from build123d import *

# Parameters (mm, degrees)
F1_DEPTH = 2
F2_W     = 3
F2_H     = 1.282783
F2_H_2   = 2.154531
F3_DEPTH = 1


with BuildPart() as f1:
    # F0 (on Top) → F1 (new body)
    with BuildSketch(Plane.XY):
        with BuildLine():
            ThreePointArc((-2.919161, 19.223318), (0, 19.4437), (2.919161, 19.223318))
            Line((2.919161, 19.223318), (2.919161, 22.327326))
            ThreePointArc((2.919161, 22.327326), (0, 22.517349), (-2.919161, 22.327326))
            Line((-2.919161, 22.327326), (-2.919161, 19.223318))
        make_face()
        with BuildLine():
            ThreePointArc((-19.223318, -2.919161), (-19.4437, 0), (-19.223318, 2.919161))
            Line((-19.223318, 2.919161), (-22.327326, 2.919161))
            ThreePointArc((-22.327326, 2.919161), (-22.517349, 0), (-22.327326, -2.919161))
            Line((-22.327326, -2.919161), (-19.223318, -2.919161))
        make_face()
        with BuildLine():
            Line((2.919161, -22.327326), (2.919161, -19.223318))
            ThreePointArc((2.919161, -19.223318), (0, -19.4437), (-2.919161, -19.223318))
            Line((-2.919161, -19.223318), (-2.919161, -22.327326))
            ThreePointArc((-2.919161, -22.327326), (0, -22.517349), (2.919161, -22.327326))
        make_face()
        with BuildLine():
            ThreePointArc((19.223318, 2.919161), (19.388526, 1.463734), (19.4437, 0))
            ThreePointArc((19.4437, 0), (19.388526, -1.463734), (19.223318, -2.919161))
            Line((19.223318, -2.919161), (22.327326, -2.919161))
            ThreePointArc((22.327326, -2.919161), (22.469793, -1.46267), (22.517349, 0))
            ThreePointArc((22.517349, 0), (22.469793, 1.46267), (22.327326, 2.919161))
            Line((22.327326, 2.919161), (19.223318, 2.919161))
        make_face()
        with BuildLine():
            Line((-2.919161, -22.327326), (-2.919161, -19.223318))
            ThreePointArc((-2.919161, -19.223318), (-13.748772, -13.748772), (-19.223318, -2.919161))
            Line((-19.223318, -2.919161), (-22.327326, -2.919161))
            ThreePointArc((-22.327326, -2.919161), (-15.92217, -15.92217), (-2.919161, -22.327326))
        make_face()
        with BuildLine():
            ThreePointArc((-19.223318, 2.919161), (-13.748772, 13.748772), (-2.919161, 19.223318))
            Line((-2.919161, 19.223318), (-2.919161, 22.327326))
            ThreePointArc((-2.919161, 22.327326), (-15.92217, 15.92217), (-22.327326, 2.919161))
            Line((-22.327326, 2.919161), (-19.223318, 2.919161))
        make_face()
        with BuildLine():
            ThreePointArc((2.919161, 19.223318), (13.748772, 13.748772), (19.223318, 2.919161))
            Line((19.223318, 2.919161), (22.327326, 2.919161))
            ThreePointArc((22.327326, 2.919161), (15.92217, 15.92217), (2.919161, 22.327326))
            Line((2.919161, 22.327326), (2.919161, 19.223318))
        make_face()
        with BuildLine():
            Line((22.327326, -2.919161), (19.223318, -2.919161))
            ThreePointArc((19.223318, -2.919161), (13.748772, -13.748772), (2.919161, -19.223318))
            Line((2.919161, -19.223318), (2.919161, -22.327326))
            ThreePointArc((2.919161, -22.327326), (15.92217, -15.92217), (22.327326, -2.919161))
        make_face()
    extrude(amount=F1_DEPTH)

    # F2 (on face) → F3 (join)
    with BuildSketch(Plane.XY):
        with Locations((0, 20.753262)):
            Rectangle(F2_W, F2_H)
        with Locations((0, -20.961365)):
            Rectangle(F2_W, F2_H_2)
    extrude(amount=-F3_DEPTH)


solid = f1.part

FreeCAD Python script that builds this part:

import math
import FreeCAD as App
import Part
import Sketcher
from FreeCAD import Vector
Q = App.Units.Quantity


def add_polygon(sketch, points):
    """Adds a closed chain of lines whose ends are joined by coincident constraints."""
    first, n = sketch.GeometryCount, len(points)
    for a, b in zip(points, points[1:] + points[:1]):
        sketch.addGeometry(Part.LineSegment(App.Vector(*a, 0), App.Vector(*b, 0)), False)
    for i in range(n):
        sketch.addConstraint(Sketcher.Constraint("Coincident", first + i, 2, first + (i + 1) % n, 1))

doc = App.newDocument("Part")
body = doc.addObject("PartDesign::Body", "Body")

# Sketch on XY plane
sketch1 = doc.addObject("Sketcher::SketchObject", "Sketch")
body.addObject(sketch1)
sketch1.AttachmentSupport = (doc.XY_Plane, [""])
sketch1.MapMode = "FlatFace"
sketch1.addGeometry([
    Part.ArcOfCircle(Part.Circle(Vector(0.000046, 0, 0), Vector(0, 0, 1), 22.517303), math.radians(-7.448836), math.radians(-0.000001)),  # 0
    Part.ArcOfCircle(Part.Circle(Vector(0.000046, 0, 0), Vector(0, 0, 1), 22.517303), math.radians(0.000001), math.radians(7.448836)),  # 1
    Part.ArcOfCircle(Part.Circle(Vector(0.000001, 0.000001, 0), Vector(0, 0, 1), 22.517348), math.radians(7.448819), math.radians(82.551181)),  # 2
    Part.ArcOfCircle(Part.Circle(Vector(0, 0.000049, 0), Vector(0, 0, 1), 22.5173), math.radians(82.551163), math.radians(97.448837)),  # 3
    Part.ArcOfCircle(Part.Circle(Vector(-0.000001, 0.000001, 0), Vector(0, 0, 1), 22.517348), math.radians(97.448819), math.radians(172.551181)),  # 4
    Part.ArcOfCircle(Part.Circle(Vector(-0.000049, 0, 0), Vector(0, 0, 1), 22.5173), math.radians(172.551163), math.radians(187.448837)),  # 5
    Part.ArcOfCircle(Part.Circle(Vector(-0.000001, -0.000001, 0), Vector(0, 0, 1), 22.517348), math.radians(-172.551181), math.radians(-97.448819)),  # 6
    Part.ArcOfCircle(Part.Circle(Vector(0, -0.000049, 0), Vector(0, 0, 1), 22.5173), math.radians(-97.448837), math.radians(-82.551163)),  # 7
    Part.ArcOfCircle(Part.Circle(Vector(0.000001, -0.000001, 0), Vector(0, 0, 1), 22.517348), math.radians(-82.551181), math.radians(-7.448819)),  # 8
    Part.ArcOfCircle(Part.Circle(Vector(0, 0.000031, 0), Vector(0, 0, 1), 19.443669), math.radians(81.365292), math.radians(98.634708)),  # 9
    Part.ArcOfCircle(Part.Circle(Vector(0.000001, 0.000001, 0), Vector(0, 0, 1), 19.443699), math.radians(8.634692), math.radians(81.365308)),  # 10
    Part.ArcOfCircle(Part.Circle(Vector(-0.000046, -0.000006, 0), Vector(0, 0, 1), 19.443746), math.radians(0.000017), math.radians(8.634691)),  # 11
    Part.ArcOfCircle(Part.Circle(Vector(-0.000046, 0.000006, 0), Vector(0, 0, 1), 19.443746), math.radians(-8.634691), math.radians(-0.000017)),  # 12
    Part.ArcOfCircle(Part.Circle(Vector(0.000001, -0.000001, 0), Vector(0, 0, 1), 19.443699), math.radians(-81.365308), math.radians(-8.634692)),  # 13
    Part.ArcOfCircle(Part.Circle(Vector(0, -0.000031, 0), Vector(0, 0, 1), 19.443669), math.radians(-98.634708), math.radians(-81.365292)),  # 14
    Part.ArcOfCircle(Part.Circle(Vector(-0.000001, -0.000001, 0), Vector(0, 0, 1), 19.443699), math.radians(-171.365308), math.radians(-98.634692)),  # 15
    Part.ArcOfCircle(Part.Circle(Vector(-0.000031, 0, 0), Vector(0, 0, 1), 19.443669), math.radians(171.365292), math.radians(188.634708)),  # 16
    Part.ArcOfCircle(Part.Circle(Vector(-0.000001, 0.000001, 0), Vector(0, 0, 1), 19.443699), math.radians(98.634692), math.radians(171.365308)),  # 17
], False)
sketch1.addConstraint([
    Sketcher.Constraint("Coincident", 0, 2, 1, 1),
    Sketcher.Constraint("Coincident", 1, 2, 2, 1),
    Sketcher.Constraint("Coincident", 2, 2, 3, 1),
    Sketcher.Constraint("Coincident", 3, 2, 4, 1),
    Sketcher.Constraint("Coincident", 4, 2, 5, 1),
    Sketcher.Constraint("Coincident", 5, 2, 6, 1),
    Sketcher.Constraint("Coincident", 6, 2, 7, 1),
    Sketcher.Constraint("Coincident", 7, 2, 8, 1),
    Sketcher.Constraint("Coincident", 8, 2, 0, 1),
    Sketcher.Constraint("Coincident", 9, 1, 10, 2),
    Sketcher.Constraint("Coincident", 10, 1, 11, 2),
    Sketcher.Constraint("Coincident", 11, 1, 12, 2),
    Sketcher.Constraint("Coincident", 12, 1, 13, 2),
    Sketcher.Constraint("Coincident", 13, 1, 14, 2),
    Sketcher.Constraint("Coincident", 14, 1, 15, 2),
    Sketcher.Constraint("Coincident", 15, 1, 16, 2),
    Sketcher.Constraint("Coincident", 16, 1, 17, 2),
    Sketcher.Constraint("Coincident", 17, 1, 9, 2),
    Sketcher.Constraint("Coincident", 2, 3, -1, 1),
    Sketcher.Constraint("Coincident", 4, 3, -1, 1),
    Sketcher.Constraint("Coincident", 6, 3, -1, 1),
    Sketcher.Constraint("Coincident", 8, 3, -1, 1),
    Sketcher.Constraint("Coincident", 10, 3, -1, 1),
    Sketcher.Constraint("Coincident", 13, 3, -1, 1),
    Sketcher.Constraint("Coincident", 15, 3, -1, 1),
    Sketcher.Constraint("Coincident", 17, 3, -1, 1),
    Sketcher.Constraint("Coincident", 1, 3, 0, 3),
    Sketcher.Constraint("Coincident", 11, 3, 5, 3),
    Sketcher.Constraint("Coincident", 12, 3, 5, 3),
    Sketcher.Constraint("PointOnObject", 0, 3, -1),
    Sketcher.Constraint("PointOnObject", 3, 3, -2),
    Sketcher.Constraint("PointOnObject", 5, 3, -1),
    Sketcher.Constraint("PointOnObject", 9, 3, -2),
    Sketcher.Constraint("PointOnObject", 14, 3, -2),
    Sketcher.Constraint("PointOnObject", 0, 2, -1),
    Sketcher.Constraint("PointOnObject", 11, 1, -1),
    Sketcher.Constraint("Radius", 3, Q("22.5173 mm")),
    Sketcher.Constraint("Radius", 5, Q("22.5173 mm")),
    Sketcher.Constraint("Radius", 7, Q("22.5173 mm")),
    Sketcher.Constraint("Radius", 10, Q("19.443699 mm")),
    Sketcher.Constraint("Radius", 9, Q("19.443669 mm")),
    Sketcher.Constraint("Radius", 14, Q("19.443669 mm")),
    Sketcher.Constraint("Radius", 16, Q("19.443669 mm")),
    Sketcher.Constraint("Radius", 0, Q("22.517303 mm")),
    Sketcher.Constraint("Radius", 2, Q("22.517348 mm")),
    Sketcher.Constraint("DistanceY", -1, 1, 1, 2, Q("2.919161 mm")),
    Sketcher.Constraint("DistanceX", -1, 1, 2, 2, Q("2.919161 mm")),
    Sketcher.Constraint("DistanceX", 3, 2, -1, 1, Q("2.919161 mm")),
    Sketcher.Constraint("DistanceY", -1, 1, 4, 2, Q("2.919161 mm")),
    Sketcher.Constraint("DistanceY", 5, 2, -1, 1, Q("2.919161 mm")),
    Sketcher.Constraint("DistanceX", 6, 2, -1, 1, Q("2.919161 mm")),
    Sketcher.Constraint("DistanceX", -1, 1, 7, 2, Q("2.919161 mm")),
    Sketcher.Constraint("DistanceY", 8, 2, -1, 1, Q("2.919161 mm")),
    Sketcher.Constraint("DistanceX", -1, 1, 9, 1, Q("2.919161 mm")),
    Sketcher.Constraint("DistanceY", -1, 1, 10, 1, Q("2.919161 mm")),
    Sketcher.Constraint("DistanceY", 12, 1, -1, 1, Q("2.919161 mm")),
    Sketcher.Constraint("DistanceX", -1, 1, 13, 1, Q("2.919161 mm")),
    Sketcher.Constraint("DistanceX", 14, 1, -1, 1, Q("2.919161 mm")),
    Sketcher.Constraint("DistanceY", 15, 1, -1, 1, Q("2.919161 mm")),
    Sketcher.Constraint("DistanceY", -1, 1, 16, 1, Q("2.919161 mm")),
    Sketcher.Constraint("DistanceX", 17, 1, -1, 1, Q("2.919161 mm")),
])
pad1 = doc.addObject("PartDesign::Pad", "Pad")
body.addObject(pad1)
pad1.Profile = sketch1
pad1.Length = 2

# Sketch on XY plane
sketch2 = doc.addObject("Sketcher::SketchObject", "Sketch001")
body.addObject(sketch2)
sketch2.AttachmentSupport = (doc.XY_Plane, [""])
sketch2.MapMode = "FlatFace"
add_polygon(sketch2, [(-1.5, 21.394654), (-1.5, 20.11187), (1.5, 20.11187), (1.5, 21.394654)])  # lines 0-3
add_polygon(sketch2, [(-1.5, -19.8841), (-1.5, -22.038631), (1.5, -22.038631), (1.5, -19.8841)])  # lines 4-7
sketch2.addConstraint([
    Sketcher.Constraint("Vertical", 0),
    Sketcher.Constraint("Horizontal", 1),
    Sketcher.Constraint("Vertical", 2),
    Sketcher.Constraint("Horizontal", 3),
    Sketcher.Constraint("Vertical", 4),
    Sketcher.Constraint("Horizontal", 5),
    Sketcher.Constraint("Vertical", 6),
    Sketcher.Constraint("Horizontal", 7),
    Sketcher.Constraint("Vertical", 3, 2, 4, 2),
    Sketcher.Constraint("Vertical", 2, 2, 5, 2),
    Sketcher.Constraint("DistanceX", 1, 1, 1, 2, Q("3 mm")),
    Sketcher.Constraint("DistanceX", 0, 2, -1, 1, Q("1.5 mm")),
    Sketcher.Constraint("DistanceY", 4, 2, 4, 1, Q("2.154531 mm")),
    Sketcher.Constraint("DistanceY", 6, 2, -1, 1, Q("19.8841 mm")),
    Sketcher.Constraint("DistanceY", 4, 2, 0, 2, Q("42.150501 mm")),
    Sketcher.Constraint("DistanceY", 0, 2, 0, 1, Q("1.282783 mm")),
])
pad2 = doc.addObject("PartDesign::Pad", "Pad001")
body.addObject(pad2)
pad2.Profile = sketch2
pad2.Length = 1
pad2.Reversed = True

doc.recompute()
